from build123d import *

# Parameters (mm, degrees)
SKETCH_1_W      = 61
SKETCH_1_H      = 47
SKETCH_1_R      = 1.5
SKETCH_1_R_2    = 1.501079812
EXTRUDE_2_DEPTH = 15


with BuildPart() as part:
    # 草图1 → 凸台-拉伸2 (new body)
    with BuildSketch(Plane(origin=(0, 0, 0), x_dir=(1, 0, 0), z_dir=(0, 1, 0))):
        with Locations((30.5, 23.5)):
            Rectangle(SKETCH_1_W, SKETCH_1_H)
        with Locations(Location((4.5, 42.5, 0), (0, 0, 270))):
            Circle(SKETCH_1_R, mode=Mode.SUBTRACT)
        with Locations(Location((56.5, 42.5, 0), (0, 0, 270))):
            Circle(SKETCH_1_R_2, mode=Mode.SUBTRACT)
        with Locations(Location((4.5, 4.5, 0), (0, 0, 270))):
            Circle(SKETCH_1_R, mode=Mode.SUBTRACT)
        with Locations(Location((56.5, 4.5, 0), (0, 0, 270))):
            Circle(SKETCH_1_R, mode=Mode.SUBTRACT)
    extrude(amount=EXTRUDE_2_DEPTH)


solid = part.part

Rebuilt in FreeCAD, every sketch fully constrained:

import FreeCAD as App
import Part
import Sketcher

V = App.Vector

doc = App.newDocument("Part")
body = doc.addObject("PartDesign::Body", "Body")

# Sketch on XZ plane
sketch1 = body.newObject("Sketcher::SketchObject", "Sketch")
sketch1.AttachmentSupport = (doc.getObject("XZ_Plane"), [""])
sketch1.MapMode = "FlatFace"
sketch1.addGeometry(Part.LineSegment(V(0, -47, 0), V(0, 0, 0)), False)
sketch1.addGeometry(Part.LineSegment(V(0, 0, 0), V(61, 0, 0)), False)
sketch1.addGeometry(Part.LineSegment(V(61, 0, 0), V(61, -47, 0)), False)
sketch1.addGeometry(Part.LineSegment(V(61, -47, 0), V(0, -47, 0)), False)
sketch1.addGeometry(Part.Circle(V(4.5, -4.5, 0), V(0, 0, 1), 1.5), False)
sketch1.addGeometry(Part.Circle(V(56.5, -4.5, 0), V(0, 0, 1), 1.5), False)
sketch1.addGeometry(Part.Circle(V(4.5, -42.5, 0), V(0, 0, 1), 1.5), False)
sketch1.addGeometry(Part.Circle(V(56.5, -42.5, 0), V(0, 0, 1), 1.5), False)
sketch1.addConstraint(Sketcher.Constraint("Coincident", 0, 2, 1, 1))
sketch1.addConstraint(Sketcher.Constraint("Coincident", 1, 2, 2, 1))
sketch1.addConstraint(Sketcher.Constraint("Coincident", 2, 2, 3, 1))
sketch1.addConstraint(Sketcher.Constraint("Coincident", 3, 2, 0, 1))
sketch1.addConstraint(Sketcher.Constraint("Vertical", 0))
sketch1.addConstraint(Sketcher.Constraint("Horizontal", 1))
sketch1.addConstraint(Sketcher.Constraint("Vertical", 2))
sketch1.addConstraint(Sketcher.Constraint("Horizontal", 3))
sketch1.addConstraint(Sketcher.Constraint("Coincident", 0, 2, -1, 1))
sketch1.addConstraint(Sketcher.Constraint("Equal", 4, 5))
sketch1.addConstraint(Sketcher.Constraint("Equal", 5, 6))
sketch1.addConstraint(Sketcher.Constraint("Horizontal", 4, 3, 5, 3))
sketch1.addConstraint(Sketcher.Constraint("Horizontal", 6, 3, 7, 3))
sketch1.addConstraint(Sketcher.Constraint("Vertical", 4, 3, 6, 3))
sketch1.addConstraint(Sketcher.Constraint("Vertical", 5, 3, 7, 3))
sketch1.addConstraint(Sketcher.Constraint("Diameter", 4, 3.0))
sketch1.addConstraint(Sketcher.Constraint("DistanceX", 1, 1, 1, 2, 61.0))
sketch1.addConstraint(Sketcher.Constraint("DistanceY", 0, 1, 0, 2, 47.0))
sketch1.addConstraint(Sketcher.Constraint("DistanceX", 4, 3, 5, 3, 52.0))
sketch1.addConstraint(Sketcher.Constraint("DistanceY", 6, 3, 4, 3, 38.0))
sketch1.addConstraint(Sketcher.Constraint("DistanceX", -1, 1, 4, 3, 4.5))
sketch1.addConstraint(Sketcher.Constraint("DistanceY", 4, 3, -1, 1, 4.5))
sketch1.addConstraint(Sketcher.Constraint("Diameter", 7, 3.00216))
pad1 = body.newObject("PartDesign::Pad", "Pad")
pad1.Profile = sketch1
pad1.Length = 15
pad1.Reversed = True

doc.recompute()
